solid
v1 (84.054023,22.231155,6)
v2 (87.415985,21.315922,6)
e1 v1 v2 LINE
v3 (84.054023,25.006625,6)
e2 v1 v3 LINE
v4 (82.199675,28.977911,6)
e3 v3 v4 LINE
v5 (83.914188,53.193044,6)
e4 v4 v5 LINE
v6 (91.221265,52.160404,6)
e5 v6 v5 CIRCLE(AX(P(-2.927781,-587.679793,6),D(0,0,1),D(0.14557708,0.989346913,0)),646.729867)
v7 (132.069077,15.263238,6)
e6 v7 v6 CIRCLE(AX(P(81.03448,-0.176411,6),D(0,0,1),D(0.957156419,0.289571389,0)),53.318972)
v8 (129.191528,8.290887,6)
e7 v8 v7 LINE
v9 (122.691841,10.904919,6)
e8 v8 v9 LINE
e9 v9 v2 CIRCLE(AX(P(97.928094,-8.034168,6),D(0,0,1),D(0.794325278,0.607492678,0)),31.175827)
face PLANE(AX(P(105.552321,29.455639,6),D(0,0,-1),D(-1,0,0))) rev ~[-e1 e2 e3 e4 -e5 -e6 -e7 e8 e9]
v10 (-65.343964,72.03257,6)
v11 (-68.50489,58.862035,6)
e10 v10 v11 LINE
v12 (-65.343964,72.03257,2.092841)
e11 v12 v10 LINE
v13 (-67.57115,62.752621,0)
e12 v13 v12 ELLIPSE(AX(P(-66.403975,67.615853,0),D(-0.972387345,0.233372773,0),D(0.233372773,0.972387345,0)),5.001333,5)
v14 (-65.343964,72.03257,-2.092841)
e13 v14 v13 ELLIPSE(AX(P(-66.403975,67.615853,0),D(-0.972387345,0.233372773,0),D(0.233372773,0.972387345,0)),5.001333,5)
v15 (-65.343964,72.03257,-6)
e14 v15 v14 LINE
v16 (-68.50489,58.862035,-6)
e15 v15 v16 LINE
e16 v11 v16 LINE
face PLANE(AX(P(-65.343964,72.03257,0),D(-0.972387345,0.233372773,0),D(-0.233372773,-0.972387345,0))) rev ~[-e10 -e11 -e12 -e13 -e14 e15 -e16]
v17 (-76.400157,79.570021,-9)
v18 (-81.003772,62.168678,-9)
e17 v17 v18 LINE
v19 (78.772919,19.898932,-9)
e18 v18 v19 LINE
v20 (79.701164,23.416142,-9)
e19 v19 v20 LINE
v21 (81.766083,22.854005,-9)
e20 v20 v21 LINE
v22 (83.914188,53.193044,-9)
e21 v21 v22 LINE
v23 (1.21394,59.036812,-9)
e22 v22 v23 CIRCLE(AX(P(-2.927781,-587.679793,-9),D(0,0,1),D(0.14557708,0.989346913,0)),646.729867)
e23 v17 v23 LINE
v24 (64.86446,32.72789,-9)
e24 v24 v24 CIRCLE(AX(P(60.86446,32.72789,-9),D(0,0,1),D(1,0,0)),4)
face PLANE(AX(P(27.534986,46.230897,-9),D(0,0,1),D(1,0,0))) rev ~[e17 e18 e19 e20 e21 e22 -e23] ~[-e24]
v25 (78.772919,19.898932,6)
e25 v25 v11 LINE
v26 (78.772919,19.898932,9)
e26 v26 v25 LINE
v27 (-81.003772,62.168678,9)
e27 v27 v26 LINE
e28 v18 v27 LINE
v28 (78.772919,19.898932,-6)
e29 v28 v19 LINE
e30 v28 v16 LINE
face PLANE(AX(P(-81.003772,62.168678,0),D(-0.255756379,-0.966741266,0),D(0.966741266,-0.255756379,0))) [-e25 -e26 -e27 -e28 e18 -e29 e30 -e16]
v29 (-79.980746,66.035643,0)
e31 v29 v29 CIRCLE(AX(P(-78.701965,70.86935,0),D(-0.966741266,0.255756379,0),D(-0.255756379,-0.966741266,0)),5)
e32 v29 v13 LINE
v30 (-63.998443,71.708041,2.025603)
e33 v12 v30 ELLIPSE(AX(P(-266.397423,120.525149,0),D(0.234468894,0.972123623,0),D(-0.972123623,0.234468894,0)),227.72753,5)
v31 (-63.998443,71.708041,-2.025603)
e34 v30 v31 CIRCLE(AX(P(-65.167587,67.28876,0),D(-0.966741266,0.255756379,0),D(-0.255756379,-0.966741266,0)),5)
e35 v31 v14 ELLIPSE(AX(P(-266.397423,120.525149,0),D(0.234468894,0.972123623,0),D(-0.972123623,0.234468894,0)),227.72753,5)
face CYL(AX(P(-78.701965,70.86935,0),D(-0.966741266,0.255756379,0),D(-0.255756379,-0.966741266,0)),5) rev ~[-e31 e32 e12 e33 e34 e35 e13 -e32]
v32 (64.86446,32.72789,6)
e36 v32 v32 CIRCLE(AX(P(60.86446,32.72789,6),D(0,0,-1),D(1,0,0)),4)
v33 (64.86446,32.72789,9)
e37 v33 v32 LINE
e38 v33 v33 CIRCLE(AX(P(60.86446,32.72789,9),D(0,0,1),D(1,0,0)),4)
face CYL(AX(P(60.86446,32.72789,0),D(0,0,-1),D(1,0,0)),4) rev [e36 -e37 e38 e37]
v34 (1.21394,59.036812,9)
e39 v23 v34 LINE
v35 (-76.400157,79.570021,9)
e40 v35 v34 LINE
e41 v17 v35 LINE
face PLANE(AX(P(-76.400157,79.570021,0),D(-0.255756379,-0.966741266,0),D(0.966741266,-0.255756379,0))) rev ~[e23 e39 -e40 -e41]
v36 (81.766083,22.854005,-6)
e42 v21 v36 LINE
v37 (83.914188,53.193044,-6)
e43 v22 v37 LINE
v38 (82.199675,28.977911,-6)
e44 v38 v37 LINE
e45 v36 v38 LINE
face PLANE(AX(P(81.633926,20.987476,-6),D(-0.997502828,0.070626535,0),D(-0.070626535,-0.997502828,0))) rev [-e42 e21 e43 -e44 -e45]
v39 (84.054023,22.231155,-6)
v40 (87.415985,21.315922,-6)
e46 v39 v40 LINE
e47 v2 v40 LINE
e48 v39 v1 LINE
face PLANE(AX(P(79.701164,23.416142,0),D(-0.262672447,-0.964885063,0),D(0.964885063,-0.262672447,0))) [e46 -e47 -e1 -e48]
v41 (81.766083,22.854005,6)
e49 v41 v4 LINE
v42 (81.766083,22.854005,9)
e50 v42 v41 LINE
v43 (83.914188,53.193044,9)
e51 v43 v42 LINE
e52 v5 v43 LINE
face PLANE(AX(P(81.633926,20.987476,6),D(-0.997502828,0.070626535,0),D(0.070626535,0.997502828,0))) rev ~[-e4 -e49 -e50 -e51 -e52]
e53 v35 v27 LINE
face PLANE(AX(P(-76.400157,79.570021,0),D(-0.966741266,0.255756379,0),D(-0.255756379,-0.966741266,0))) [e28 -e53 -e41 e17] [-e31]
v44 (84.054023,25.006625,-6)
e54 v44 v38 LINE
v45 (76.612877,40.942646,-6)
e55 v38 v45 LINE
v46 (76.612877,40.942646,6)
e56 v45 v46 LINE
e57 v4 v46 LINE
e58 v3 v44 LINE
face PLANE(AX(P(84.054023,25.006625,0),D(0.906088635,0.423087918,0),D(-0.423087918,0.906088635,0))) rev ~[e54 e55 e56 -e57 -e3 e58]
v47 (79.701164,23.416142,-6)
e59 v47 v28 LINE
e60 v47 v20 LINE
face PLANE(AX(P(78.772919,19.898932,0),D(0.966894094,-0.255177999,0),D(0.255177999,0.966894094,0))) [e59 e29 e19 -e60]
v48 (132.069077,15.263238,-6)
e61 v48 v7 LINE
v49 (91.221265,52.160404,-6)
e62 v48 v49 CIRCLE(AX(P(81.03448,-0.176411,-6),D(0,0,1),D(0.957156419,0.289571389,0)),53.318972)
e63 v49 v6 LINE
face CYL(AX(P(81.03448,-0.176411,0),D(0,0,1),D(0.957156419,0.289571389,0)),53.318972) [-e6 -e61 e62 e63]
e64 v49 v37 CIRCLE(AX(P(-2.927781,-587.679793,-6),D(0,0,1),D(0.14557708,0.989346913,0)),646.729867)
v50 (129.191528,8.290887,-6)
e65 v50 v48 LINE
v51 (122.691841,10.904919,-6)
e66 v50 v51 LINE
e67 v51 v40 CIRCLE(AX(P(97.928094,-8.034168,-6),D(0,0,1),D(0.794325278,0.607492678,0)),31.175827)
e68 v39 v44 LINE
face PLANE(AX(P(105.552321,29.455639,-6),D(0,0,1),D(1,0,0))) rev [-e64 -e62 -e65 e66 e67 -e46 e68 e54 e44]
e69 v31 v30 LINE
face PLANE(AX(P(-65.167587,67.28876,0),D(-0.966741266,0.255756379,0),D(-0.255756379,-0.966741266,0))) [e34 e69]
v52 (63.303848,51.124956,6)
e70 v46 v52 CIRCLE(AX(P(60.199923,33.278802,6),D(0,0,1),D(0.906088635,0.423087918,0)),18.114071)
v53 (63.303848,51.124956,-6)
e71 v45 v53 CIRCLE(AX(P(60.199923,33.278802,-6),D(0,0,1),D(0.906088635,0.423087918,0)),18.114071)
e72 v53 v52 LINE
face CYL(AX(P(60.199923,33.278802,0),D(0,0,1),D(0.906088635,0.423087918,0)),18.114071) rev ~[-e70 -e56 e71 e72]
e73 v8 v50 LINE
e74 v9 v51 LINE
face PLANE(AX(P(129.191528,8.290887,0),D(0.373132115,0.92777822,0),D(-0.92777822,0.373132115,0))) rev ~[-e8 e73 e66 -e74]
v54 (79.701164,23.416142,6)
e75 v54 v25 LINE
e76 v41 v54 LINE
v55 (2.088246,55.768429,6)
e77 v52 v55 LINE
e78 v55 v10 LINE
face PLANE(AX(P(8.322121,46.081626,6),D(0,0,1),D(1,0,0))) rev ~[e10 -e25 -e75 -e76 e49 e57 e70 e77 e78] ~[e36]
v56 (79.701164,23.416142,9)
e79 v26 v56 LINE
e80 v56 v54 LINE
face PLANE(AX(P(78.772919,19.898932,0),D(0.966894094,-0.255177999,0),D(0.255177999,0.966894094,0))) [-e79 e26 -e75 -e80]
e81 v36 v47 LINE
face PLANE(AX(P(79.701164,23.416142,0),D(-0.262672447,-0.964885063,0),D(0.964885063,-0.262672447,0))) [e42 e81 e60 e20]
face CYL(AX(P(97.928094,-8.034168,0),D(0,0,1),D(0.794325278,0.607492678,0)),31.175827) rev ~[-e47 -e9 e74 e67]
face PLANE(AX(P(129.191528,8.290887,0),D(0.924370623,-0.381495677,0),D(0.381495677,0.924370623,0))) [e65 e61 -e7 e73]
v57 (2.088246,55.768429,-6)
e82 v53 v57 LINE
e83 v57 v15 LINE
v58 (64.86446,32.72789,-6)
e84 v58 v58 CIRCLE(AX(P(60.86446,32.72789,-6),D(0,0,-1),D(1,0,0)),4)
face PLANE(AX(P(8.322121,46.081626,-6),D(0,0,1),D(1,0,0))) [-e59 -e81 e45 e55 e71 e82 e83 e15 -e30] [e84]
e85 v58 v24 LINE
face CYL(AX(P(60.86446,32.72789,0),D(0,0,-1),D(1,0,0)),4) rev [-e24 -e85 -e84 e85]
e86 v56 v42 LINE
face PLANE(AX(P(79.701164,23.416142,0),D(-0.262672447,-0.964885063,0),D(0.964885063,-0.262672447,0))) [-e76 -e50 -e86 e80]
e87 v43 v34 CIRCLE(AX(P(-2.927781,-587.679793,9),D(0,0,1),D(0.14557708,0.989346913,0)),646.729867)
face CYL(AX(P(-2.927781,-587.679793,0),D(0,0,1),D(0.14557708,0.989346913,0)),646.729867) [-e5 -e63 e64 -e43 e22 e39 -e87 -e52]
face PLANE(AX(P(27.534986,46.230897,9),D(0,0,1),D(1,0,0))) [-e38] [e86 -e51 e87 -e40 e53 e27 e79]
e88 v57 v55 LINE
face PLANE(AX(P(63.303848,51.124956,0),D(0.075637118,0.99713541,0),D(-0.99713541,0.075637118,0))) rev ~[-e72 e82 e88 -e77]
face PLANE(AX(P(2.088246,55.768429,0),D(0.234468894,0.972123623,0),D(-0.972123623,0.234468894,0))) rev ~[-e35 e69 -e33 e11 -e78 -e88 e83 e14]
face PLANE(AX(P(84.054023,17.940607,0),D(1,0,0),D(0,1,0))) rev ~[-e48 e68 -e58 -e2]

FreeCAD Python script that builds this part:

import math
import FreeCAD as App
import Part
import Sketcher
Q = App.Units.Quantity

doc = App.newDocument("Part")
body = doc.addObject("PartDesign::Body", "Body")

sketch1 = body.newObject("Sketcher::SketchObject", "Sketch")
sketch1.AttachmentSupport = (doc.getObject("XY_Plane"), [""])
sketch1.MapMode = "FlatFace"
sketch1.addGeometry(Part.LineSegment(App.Vector(129.191528, 8.290887, 0), App.Vector(132.069077, 15.263238, 0)), False)
sketch1.addGeometry(Part.ArcOfCircle(Part.Circle(App.Vector(81.03448, -0.176411, 0), App.Vector(0, 0, 1), 53.318972), math.radians(16.832297), math.radians(78.98572)), False)
sketch1.addGeometry(Part.ArcOfCircle(Part.Circle(App.Vector(-2.927781, -587.679793, 0), App.Vector(0, 0, 1), 646.729867), math.radians(81.629302), math.radians(89.63307)), False)
sketch1.addGeometry(Part.LineSegment(App.Vector(1.21394, 59.036812, 0), App.Vector(-76.400157, 79.570021, 0)), False)
sketch1.addGeometry(Part.LineSegment(App.Vector(-76.400157, 79.570021, 0), App.Vector(-81.003772, 62.168678, 0)), False)
sketch1.addGeometry(Part.LineSegment(App.Vector(-81.003772, 62.168678, 0), App.Vector(78.772919, 19.898932, 0)), False)
sketch1.addGeometry(Part.LineSegment(App.Vector(78.772919, 19.898932, 0), App.Vector(79.701164, 23.416142, 0)), False)
sketch1.addGeometry(Part.LineSegment(App.Vector(79.701164, 23.416142, 0), App.Vector(87.415985, 21.315922, 0)), False)
sketch1.addGeometry(Part.ArcOfCircle(Part.Circle(App.Vector(97.928094, -8.034168, 0), App.Vector(0, 0, 1), 31.175827), math.radians(37.408427), math.radians(109.705632)), False)
sketch1.addGeometry(Part.LineSegment(App.Vector(122.691841, 10.904919, 0), App.Vector(129.191528, 8.290887, 0)), False)
sketch1.addGeometry(Part.Circle(App.Vector(60.86446, 32.72789, 0), App.Vector(0, 0, 1), 4), False)
sketch1.addConstraint(Sketcher.Constraint("Coincident", 0, 2, 1, 1))
sketch1.addConstraint(Sketcher.Constraint("Coincident", 1, 2, 2, 1))
sketch1.addConstraint(Sketcher.Constraint("Coincident", 2, 2, 3, 1))
sketch1.addConstraint(Sketcher.Constraint("Coincident", 3, 2, 4, 1))
sketch1.addConstraint(Sketcher.Constraint("Coincident", 4, 2, 5, 1))
sketch1.addConstraint(Sketcher.Constraint("Coincident", 5, 2, 6, 1))
sketch1.addConstraint(Sketcher.Constraint("Coincident", 6, 2, 7, 1))
sketch1.addConstraint(Sketcher.Constraint("Coincident", 7, 2, 8, 2))
sketch1.addConstraint(Sketcher.Constraint("Coincident", 8, 1, 9, 1))
sketch1.addConstraint(Sketcher.Constraint("Coincident", 9, 2, 0, 1))
sketch1.addConstraint(Sketcher.Constraint("Perpendicular", 3, 4))
sketch1.addConstraint(Sketcher.Constraint("Perpendicular", 4, 5))
sketch1.addConstraint(Sketcher.Constraint("Diameter", 10, Q("8 mm")))
sketch1.addConstraint(Sketcher.Constraint("Distance", 4, Q("18 mm")))
sketch1.addConstraint(Sketcher.Constraint("Radius", 1, Q("53.318972 mm")))
sketch1.addConstraint(Sketcher.Constraint("Radius", 2, Q("646.729867 mm")))
sketch1.addConstraint(Sketcher.Constraint("Radius", 8, Q("31.175827 mm")))
sketch1.addConstraint(Sketcher.Constraint("DistanceY", 1, 3, 10, 3, Q("32.904301 mm")))
sketch1.addConstraint(Sketcher.Constraint("DistanceY", 8, 3, 5, 2, Q("27.9331 mm")))
sketch1.addConstraint(Sketcher.Constraint("DistanceX", 6, 2, 1, 2, Q("11.520101 mm")))
sketch1.addConstraint(Sketcher.Constraint("Distance", 0, Q("7.542809 mm")))
sketch1.addConstraint(Sketcher.Constraint("Distance", 3, Q("80.28425 mm")))
sketch1.addConstraint(Sketcher.Constraint("DistanceX", -1, 1, 1, 3, Q("81.03448 mm")))
sketch1.addConstraint(Sketcher.Constraint("DistanceY", 1, 3, -1, 1, Q("0.176411 mm")))
sketch1.addConstraint(Sketcher.Constraint("DistanceX", 2, 3, -1, 1, Q("2.927781 mm")))
sketch1.addConstraint(Sketcher.Constraint("DistanceX", -1, 1, 10, 3, Q("60.86446 mm")))
sketch1.addConstraint(Sketcher.Constraint("DistanceY", -1, 1, 2, 2, Q("59.036812 mm")))
sketch1.addConstraint(Sketcher.Constraint("DistanceY", -1, 1, 3, 2, Q("79.570021 mm")))
sketch1.addConstraint(Sketcher.Constraint("DistanceX", 4, 2, -1, 1, Q("81.003772 mm")))
sketch1.addConstraint(Sketcher.Constraint("DistanceX", -1, 1, 5, 2, Q("78.772919 mm")))
sketch1.addConstraint(Sketcher.Constraint("DistanceX", -1, 1, 8, 1, Q("122.691841 mm")))
sketch1.addConstraint(Sketcher.Constraint("DistanceY", -1, 1, 8, 1, Q("10.904919 mm")))
sketch1.addConstraint(Sketcher.Constraint("DistanceX", -1, 1, 9, 2, Q("129.191528 mm")))
sketch1.addConstraint(Sketcher.Constraint("DistanceY", 1, 3, 0, 2, Q("15.439649 mm")))
sketch1.addConstraint(Sketcher.Constraint("DistanceY", 5, 2, 6, 2, Q("3.51721 mm")))
sketch1.addConstraint(Sketcher.Constraint("DistanceX", 6, 2, 7, 2, Q("7.714821 mm")))
pad1 = body.newObject("PartDesign::Pad", "Pad")
pad1.Profile = sketch1
pad1.Length = 18
pad1.Midplane = True

sketch2 = body.newObject("Sketcher::SketchObject", "Sketch001")
sketch2.AttachmentSupport = (doc.getObject("XY_Plane"), [""])
sketch2.MapMode = "FlatFace"
sketch2.AttachmentOffset = App.Placement(App.Vector(0, 0, 6), App.Rotation())
sketch2.addGeometry(Part.LineSegment(App.Vector(84.018715, 54.669346, 0), App.Vector(81.633926, 20.987476, 0)), False)
sketch2.addGeometry(Part.LineSegment(App.Vector(81.633926, 20.987476, 0), App.Vector(129.179794, 5.660023, 0)), False)
sketch2.addGeometry(Part.LineSegment(App.Vector(129.179794, 5.660023, 0), App.Vector(133.578181, 14.805182, 0)), False)
sketch2.addGeometry(Part.ArcOfCircle(Part.Circle(App.Vector(85.265877, 4.705235, 0), App.Vector(0, 0, 1), 49.356739), math.radians(11.807932), math.radians(82.374334)), False)
sketch2.addGeometry(Part.LineSegment(App.Vector(91.815535, 53.625473, 0), App.Vector(84.018715, 54.669346, 0)), False)
sketch2.addConstraint(Sketcher.Constraint("Coincident", 0, 2, 1, 1))
sketch2.addConstraint(Sketcher.Constraint("Coincident", 1, 2, 2, 1))
sketch2.addConstraint(Sketcher.Constraint("Coincident", 2, 2, 3, 1))
sketch2.addConstraint(Sketcher.Constraint("Tangent", 3, 2, 4, 1))
sketch2.addConstraint(Sketcher.Constraint("Coincident", 4, 2, 0, 1))
sketch2.addConstraint(Sketcher.Constraint("Radius", 3, Q("49.356739 mm")))
sketch2.addConstraint(Sketcher.Constraint("Distance", 0, Q("33.76619 mm")))
sketch2.addConstraint(Sketcher.Constraint("Distance", 4, Q("7.866389 mm")))
sketch2.addConstraint(Sketcher.Constraint("DistanceX", -1, 1, 2, 2, Q("133.578181 mm")))
sketch2.addConstraint(Sketcher.Constraint("DistanceX", 0, 2, 3, 3, Q("3.631951 mm")))
sketch2.addConstraint(Sketcher.Constraint("DistanceY", 3, 3, 0, 2, Q("16.282241 mm")))
sketch2.addConstraint(Sketcher.Constraint("DistanceY", 1, 2, 2, 2, Q("9.145159 mm")))
sketch2.addConstraint(Sketcher.Constraint("DistanceY", 2, 2, 3, 2, Q("38.820291 mm")))
sketch2.addConstraint(Sketcher.Constraint("DistanceX", 3, 2, 1, 2, Q("37.364259 mm")))
sketch2.addConstraint(Sketcher.Constraint("DistanceY", -1, 1, 3, 3, Q("4.705235 mm")))
pocket1 = body.newObject("PartDesign::Pocket", "Pocket")
pocket1.Profile = sketch2
pocket1.Type = "ThroughAll"
pocket1.Reversed = True
doc.recompute()

mirrored = body.newObject("PartDesign::Mirrored", "Mirrored")
mirrored.Originals = [pocket1]
mirrored.MirrorPlane = (doc.getObject("XY_Plane"), [""])
body.Tip = mirrored

sketch3 = body.newObject("Sketcher::SketchObject", "Sketch002")
sketch3.AttachmentSupport = (doc.getObject("XY_Plane"), [""])
sketch3.MapMode = "FlatFace"
sketch3.addGeometry(Part.LineSegment(App.Vector(84.054023, 25.006625, 0), App.Vector(76.612877, 40.942646, 0)), False)
sketch3.addGeometry(Part.ArcOfCircle(Part.Circle(App.Vector(60.199923, 33.278802, 0), App.Vector(0, 0, 1), 18.114071), math.radians(25.029695), math.radians(80.133426)), False)
sketch3.addGeometry(Part.LineSegment(App.Vector(63.303848, 51.124956, 0), App.Vector(2.088246, 55.768429, 0)), False)
sketch3.addGeometry(Part.LineSegment(App.Vector(2.088246, 55.768429, 0), App.Vector(-65.343964, 72.03257, 0)), False)
sketch3.addGeometry(Part.LineSegment(App.Vector(-65.343964, 72.03257, 0), App.Vector(-69.729797, 53.758251, 0)), False)
sketch3.addGeometry(Part.LineSegment(App.Vector(-69.729797, 53.758251, 0), App.Vector(84.054023, 17.940607, 0)), False)
sketch3.addGeometry(Part.LineSegment(App.Vector(84.054023, 17.940607, 0), App.Vector(84.054023, 25.006625, 0)), False)
sketch3.addConstraint(Sketcher.Constraint("Tangent", 0, 2, 1, 1))
sketch3.addConstraint(Sketcher.Constraint("Coincident", 1, 2, 2, 1))
sketch3.addConstraint(Sketcher.Constraint("Coincident", 2, 2, 3, 1))
sketch3.addConstraint(Sketcher.Constraint("Coincident", 3, 2, 4, 1))
sketch3.addConstraint(Sketcher.Constraint("Coincident", 4, 2, 5, 1))
sketch3.addConstraint(Sketcher.Constraint("Coincident", 5, 2, 6, 1))
sketch3.addConstraint(Sketcher.Constraint("Coincident", 6, 2, 0, 1))
sketch3.addConstraint(Sketcher.Constraint("Vertical", 6))
sketch3.addConstraint(Sketcher.Constraint("Radius", 1, Q("18.114071 mm")))
sketch3.addConstraint(Sketcher.Constraint("DistanceY", 6, 1, 6, 2, Q("7.066018 mm")))
sketch3.addConstraint(Sketcher.Constraint("DistanceY", -1, 1, 1, 3, Q("33.278802 mm")))
sketch3.addConstraint(Sketcher.Constraint("DistanceX", 1, 3, 5, 2, Q("23.8541 mm")))
sketch3.addConstraint(Sketcher.Constraint("Distance", 3, Q("69.365879 mm")))
sketch3.addConstraint(Sketcher.Constraint("Distance", 4, Q("18.793251 mm")))
sketch3.addConstraint(Sketcher.Constraint("DistanceX", -1, 1, 1, 2, Q("63.303848 mm")))
sketch3.addConstraint(Sketcher.Constraint("DistanceY", -1, 1, 2, 2, Q("55.768429 mm")))
sketch3.addConstraint(Sketcher.Constraint("DistanceY", -1, 1, 3, 2, Q("72.03257 mm")))
sketch3.addConstraint(Sketcher.Constraint("DistanceY", -1, 1, 4, 2, Q("53.758251 mm")))
sketch3.addConstraint(Sketcher.Constraint("DistanceX", 1, 2, 0, 2, Q("13.309028 mm")))
sketch3.addConstraint(Sketcher.Constraint("DistanceY", 0, 2, 1, 2, Q("10.182309 mm")))
sketch3.addConstraint(Sketcher.Constraint("DistanceX", 2, 2, 0, 2, Q("74.524631 mm")))
pocket2 = body.newObject("PartDesign::Pocket", "Pocket001")
pocket2.Profile = sketch3
pocket2.Length = 12
pocket2.Midplane = True

sketch4 = body.newObject("Sketcher::SketchObject", "Sketch003")
sketch4.Placement = App.Placement(App.Vector(-76.400157, 79.570021, 0), App.Rotation(App.Vector(-0.255756379, -0.966741266, 0), App.Vector(0, 0, 1.000000001), App.Vector(-0.966741266, 0.255756379, 0), "ZXY"))
sketch4.addGeometry(Part.Circle(App.Vector(9, 0, 0), App.Vector(0, 0, 1), 5), False)
sketch4.addConstraint(Sketcher.Constraint("PointOnObject", 0, 3, -1))
sketch4.addConstraint(Sketcher.Constraint("Diameter", 0, Q("10 mm")))
sketch4.addConstraint(Sketcher.Constraint("DistanceX", -1, 1, 0, 3, Q("9 mm")))
pocket3 = body.newObject("PartDesign::Pocket", "Pocket002")
pocket3.Profile = sketch4
pocket3.Length = 14

doc.recompute()
